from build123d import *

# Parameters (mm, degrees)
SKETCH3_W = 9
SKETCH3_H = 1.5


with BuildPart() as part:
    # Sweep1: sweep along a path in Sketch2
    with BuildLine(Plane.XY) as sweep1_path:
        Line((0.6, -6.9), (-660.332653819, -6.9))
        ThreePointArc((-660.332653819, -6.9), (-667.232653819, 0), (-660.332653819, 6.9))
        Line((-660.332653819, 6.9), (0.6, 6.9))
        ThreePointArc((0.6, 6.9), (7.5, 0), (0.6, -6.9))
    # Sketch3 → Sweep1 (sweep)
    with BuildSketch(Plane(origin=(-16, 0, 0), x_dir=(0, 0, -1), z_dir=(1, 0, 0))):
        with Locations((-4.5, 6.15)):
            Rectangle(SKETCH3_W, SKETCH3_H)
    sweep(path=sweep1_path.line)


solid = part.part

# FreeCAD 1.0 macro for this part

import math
import FreeCAD as App
import Part
import Sketcher
from FreeCAD import Vector
Q = App.Units.Quantity


def add_polygon(sketch, points):
    """Adds a closed chain of lines whose ends are joined by coincident constraints."""
    first, n = sketch.GeometryCount, len(points)
    for a, b in zip(points, points[1:] + points[:1]):
        sketch.addGeometry(Part.LineSegment(App.Vector(*a, 0), App.Vector(*b, 0)), False)
    for i in range(n):
        sketch.addConstraint(Sketcher.Constraint("Coincident", first + i, 2, first + (i + 1) % n, 1))

doc = App.newDocument("Part")
body = doc.addObject("PartDesign::Body", "Body")

# Sketch on YZ plane
sketch1 = body.newObject("Sketcher::SketchObject", "Sketch")
sketch1.AttachmentSupport = (doc.getObject("YZ_Plane"), [""])
sketch1.MapMode = "FlatFace"
sketch1.AttachmentOffset = App.Placement(Vector(0, 0, -16), App.Rotation())
add_polygon(sketch1, [(6.9, 9), (5.4, 9), (5.4, 0), (6.9, 0)])  # lines 0-3
sketch1.addConstraint([
    Sketcher.Constraint("Horizontal", 0),
    Sketcher.Constraint("Vertical", 1),
    Sketcher.Constraint("Horizontal", 2),
    Sketcher.Constraint("Vertical", 3),
    Sketcher.Constraint("PointOnObject", 1, 2, -1),
    Sketcher.Constraint("DistanceY", 1, 2, 1, 1, Q("9 mm")),
    Sketcher.Constraint("DistanceX", 0, 2, 0, 1, Q("1.5 mm")),
    Sketcher.Constraint("DistanceX", -1, 1, 0, 2, Q("5.4 mm")),
])

# Sketch on XY plane
sketch2 = body.newObject("Sketcher::SketchObject", "Sketch001")
sketch2.AttachmentSupport = (doc.getObject("XY_Plane"), [""])
sketch2.MapMode = "FlatFace"
sketch2.addGeometry([
    Part.LineSegment(Vector(1, -7, 0), Vector(-660, -7, 0)),
    Part.ArcOfCircle(Part.Circle(Vector(-660, 0, 0), Vector(0, 0, 1), 7), math.radians(90), math.radians(270)),
    Part.LineSegment(Vector(-660, 7, 0), Vector(1, 7, 0)),
    Part.ArcOfCircle(Part.Circle(Vector(1, 0, 0), Vector(0, 0, 1), 7), math.radians(-90), math.radians(90)),
], False)
sketch2.addConstraint([
    Sketcher.Constraint("Tangent", 0, 2, 1, 2),
    Sketcher.Constraint("Tangent", 1, 1, 2, 1),
    Sketcher.Constraint("Tangent", 2, 2, 3, 2),
    Sketcher.Constraint("Tangent", 3, 1, 0, 1),
    Sketcher.Constraint("Horizontal", 0),
    Sketcher.Constraint("Horizontal", 2),
    Sketcher.Constraint("PointOnObject", 1, 3, -1),
    Sketcher.Constraint("Radius", 1, Q("6.9 mm")),
    Sketcher.Constraint("DistanceX", -1, 1, 3, 3, Q("0.6 mm")),
    Sketcher.Constraint("DistanceX", 0, 2, 0, 1, Q("660.932654 mm")),
])
doc.recompute()

additivepipe = body.newObject("PartDesign::AdditivePipe", "AdditivePipe")
additivepipe.Profile = sketch1
additivepipe.Spine = (sketch2, ["Edge1", "Edge2", "Edge3", "Edge4"])

doc.recompute()
